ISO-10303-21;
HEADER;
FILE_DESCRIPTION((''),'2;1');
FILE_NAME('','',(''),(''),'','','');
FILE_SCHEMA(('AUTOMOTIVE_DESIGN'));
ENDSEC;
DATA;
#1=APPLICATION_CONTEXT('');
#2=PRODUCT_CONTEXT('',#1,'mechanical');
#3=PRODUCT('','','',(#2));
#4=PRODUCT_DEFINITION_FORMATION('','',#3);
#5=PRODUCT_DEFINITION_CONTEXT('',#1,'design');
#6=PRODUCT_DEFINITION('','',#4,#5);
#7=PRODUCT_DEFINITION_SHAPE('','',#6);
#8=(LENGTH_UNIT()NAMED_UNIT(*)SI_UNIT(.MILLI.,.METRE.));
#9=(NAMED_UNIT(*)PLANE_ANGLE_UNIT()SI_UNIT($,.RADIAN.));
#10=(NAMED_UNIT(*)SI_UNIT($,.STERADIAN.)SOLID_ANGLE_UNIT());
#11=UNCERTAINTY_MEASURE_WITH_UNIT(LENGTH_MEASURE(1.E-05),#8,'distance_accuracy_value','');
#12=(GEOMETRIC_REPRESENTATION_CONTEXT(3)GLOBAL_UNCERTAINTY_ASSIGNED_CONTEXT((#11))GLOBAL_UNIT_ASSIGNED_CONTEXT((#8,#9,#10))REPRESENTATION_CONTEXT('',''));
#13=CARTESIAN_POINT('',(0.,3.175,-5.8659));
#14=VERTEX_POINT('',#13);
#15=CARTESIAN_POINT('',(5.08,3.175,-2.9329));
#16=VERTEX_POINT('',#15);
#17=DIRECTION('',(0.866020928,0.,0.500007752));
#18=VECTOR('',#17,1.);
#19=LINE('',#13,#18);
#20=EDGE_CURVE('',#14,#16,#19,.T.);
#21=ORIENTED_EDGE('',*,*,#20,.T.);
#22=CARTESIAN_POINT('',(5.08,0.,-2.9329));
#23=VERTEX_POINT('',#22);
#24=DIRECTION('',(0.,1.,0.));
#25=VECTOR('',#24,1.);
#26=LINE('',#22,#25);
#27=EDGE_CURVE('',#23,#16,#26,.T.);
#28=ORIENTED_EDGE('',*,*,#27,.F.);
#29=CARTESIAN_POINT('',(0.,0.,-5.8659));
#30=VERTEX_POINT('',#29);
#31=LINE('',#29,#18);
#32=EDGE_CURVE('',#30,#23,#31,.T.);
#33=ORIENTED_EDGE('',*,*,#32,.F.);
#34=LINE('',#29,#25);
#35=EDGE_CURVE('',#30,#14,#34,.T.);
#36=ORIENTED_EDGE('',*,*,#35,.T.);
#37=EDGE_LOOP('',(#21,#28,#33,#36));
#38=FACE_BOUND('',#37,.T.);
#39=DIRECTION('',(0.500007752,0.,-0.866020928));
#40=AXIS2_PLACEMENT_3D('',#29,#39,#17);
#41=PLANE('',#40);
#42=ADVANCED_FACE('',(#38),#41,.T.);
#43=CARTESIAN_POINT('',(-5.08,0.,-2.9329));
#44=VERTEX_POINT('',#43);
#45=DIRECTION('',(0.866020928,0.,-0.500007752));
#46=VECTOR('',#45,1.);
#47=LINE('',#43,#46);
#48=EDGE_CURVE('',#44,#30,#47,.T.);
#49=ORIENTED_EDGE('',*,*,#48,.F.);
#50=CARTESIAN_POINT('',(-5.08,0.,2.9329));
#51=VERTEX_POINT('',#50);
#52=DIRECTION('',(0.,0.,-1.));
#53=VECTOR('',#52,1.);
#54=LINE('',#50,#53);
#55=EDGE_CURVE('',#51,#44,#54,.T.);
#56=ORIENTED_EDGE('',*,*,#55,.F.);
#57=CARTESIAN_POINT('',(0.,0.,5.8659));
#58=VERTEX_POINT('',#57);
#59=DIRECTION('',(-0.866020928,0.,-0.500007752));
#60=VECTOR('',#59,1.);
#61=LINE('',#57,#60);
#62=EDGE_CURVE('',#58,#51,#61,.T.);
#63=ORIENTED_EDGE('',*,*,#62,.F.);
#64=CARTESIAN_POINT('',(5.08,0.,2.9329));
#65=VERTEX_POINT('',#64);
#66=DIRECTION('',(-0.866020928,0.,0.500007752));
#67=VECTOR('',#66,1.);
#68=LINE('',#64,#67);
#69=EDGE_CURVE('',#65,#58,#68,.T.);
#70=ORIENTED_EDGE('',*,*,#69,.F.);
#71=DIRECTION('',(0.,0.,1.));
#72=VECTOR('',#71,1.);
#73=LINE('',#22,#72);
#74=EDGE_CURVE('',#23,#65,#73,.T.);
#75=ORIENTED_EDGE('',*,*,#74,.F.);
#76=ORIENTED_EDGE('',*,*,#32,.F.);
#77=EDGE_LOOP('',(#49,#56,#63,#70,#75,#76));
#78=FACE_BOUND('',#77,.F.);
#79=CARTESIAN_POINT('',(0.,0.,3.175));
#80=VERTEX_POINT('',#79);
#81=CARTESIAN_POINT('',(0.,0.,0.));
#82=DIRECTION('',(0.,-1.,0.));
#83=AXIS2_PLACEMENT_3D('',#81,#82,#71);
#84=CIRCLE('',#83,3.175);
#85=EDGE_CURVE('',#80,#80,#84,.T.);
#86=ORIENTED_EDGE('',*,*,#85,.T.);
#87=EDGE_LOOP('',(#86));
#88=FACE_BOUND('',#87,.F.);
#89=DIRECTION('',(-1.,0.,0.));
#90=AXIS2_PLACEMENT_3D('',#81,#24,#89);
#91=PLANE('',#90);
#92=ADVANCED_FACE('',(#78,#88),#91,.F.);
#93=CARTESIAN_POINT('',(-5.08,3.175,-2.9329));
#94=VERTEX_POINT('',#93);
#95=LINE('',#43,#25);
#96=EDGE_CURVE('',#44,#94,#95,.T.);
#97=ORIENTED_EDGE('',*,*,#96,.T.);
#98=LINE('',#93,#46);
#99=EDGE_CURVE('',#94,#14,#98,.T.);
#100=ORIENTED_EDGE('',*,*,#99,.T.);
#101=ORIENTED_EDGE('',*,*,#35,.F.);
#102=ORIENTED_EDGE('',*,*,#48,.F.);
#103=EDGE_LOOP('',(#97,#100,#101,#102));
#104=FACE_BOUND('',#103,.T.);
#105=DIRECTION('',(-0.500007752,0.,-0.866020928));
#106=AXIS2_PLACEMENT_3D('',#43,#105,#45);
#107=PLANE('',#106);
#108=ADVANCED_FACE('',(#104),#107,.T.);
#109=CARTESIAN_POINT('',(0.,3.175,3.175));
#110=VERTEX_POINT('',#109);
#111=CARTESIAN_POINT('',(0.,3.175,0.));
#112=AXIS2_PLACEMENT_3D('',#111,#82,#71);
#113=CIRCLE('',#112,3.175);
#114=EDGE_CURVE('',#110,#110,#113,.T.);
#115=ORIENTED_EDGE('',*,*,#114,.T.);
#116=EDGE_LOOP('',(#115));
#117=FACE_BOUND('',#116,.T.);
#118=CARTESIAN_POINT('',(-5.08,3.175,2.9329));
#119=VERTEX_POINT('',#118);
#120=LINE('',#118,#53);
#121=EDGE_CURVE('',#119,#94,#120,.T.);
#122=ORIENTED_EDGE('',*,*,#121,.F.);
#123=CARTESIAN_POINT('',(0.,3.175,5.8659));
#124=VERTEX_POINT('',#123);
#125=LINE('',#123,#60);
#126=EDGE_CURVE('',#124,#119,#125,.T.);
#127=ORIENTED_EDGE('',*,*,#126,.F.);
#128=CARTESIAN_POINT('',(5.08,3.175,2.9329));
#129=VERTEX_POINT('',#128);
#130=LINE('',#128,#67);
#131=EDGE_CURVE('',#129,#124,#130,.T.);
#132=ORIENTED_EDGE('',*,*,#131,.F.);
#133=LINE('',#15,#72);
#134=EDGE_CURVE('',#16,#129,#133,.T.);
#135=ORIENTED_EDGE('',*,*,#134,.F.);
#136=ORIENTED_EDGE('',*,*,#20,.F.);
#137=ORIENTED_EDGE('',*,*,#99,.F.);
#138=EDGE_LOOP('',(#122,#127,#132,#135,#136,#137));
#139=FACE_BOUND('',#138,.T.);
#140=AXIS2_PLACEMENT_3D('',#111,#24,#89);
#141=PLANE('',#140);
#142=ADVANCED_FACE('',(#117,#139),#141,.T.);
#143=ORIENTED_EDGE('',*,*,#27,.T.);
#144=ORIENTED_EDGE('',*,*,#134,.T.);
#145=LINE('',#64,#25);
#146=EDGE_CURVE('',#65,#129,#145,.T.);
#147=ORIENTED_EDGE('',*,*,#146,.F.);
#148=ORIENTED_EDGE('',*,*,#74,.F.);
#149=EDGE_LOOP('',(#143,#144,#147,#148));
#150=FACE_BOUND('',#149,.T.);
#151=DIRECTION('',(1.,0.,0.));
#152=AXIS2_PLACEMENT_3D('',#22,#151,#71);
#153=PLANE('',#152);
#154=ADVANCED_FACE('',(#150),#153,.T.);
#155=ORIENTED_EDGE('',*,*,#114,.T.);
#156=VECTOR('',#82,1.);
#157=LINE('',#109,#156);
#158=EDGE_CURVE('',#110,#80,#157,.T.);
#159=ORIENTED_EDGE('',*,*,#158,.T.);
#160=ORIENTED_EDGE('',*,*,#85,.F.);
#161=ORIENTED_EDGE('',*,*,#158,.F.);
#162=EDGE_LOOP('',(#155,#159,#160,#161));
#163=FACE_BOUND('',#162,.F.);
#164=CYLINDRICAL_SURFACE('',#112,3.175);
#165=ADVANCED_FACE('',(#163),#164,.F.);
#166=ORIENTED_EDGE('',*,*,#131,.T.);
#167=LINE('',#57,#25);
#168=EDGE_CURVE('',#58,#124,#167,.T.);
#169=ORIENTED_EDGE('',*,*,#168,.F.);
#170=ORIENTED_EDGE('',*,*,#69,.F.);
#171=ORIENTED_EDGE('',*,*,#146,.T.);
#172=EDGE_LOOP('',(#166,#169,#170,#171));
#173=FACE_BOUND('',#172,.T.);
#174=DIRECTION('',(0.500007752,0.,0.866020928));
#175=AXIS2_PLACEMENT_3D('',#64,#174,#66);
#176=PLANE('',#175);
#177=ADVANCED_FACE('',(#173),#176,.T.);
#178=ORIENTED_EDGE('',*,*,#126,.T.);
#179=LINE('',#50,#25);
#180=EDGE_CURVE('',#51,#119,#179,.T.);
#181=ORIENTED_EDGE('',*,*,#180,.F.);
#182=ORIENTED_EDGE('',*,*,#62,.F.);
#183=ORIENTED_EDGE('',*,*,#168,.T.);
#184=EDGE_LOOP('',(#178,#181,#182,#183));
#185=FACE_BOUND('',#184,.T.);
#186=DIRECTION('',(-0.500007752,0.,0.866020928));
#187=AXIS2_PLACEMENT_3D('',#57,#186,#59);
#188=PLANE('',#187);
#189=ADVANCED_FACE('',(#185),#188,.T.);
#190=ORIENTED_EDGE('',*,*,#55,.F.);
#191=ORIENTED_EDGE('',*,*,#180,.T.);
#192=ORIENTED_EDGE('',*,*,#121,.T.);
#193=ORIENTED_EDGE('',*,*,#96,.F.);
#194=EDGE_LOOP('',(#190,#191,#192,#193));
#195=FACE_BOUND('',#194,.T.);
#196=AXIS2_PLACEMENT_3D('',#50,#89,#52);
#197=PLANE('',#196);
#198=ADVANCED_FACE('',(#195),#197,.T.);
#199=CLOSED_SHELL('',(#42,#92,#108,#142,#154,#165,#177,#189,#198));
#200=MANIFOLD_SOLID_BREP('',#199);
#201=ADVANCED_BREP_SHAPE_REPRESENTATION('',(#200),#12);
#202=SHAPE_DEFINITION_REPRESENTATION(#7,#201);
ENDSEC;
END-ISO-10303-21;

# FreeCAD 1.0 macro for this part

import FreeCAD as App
import Part
import Sketcher
Q = App.Units.Quantity

doc = App.newDocument("Part")
body = doc.addObject("PartDesign::Body", "Body")

# Sketch on XZ plane
sketch1 = body.newObject("Sketcher::SketchObject", "Sketch")
sketch1.AttachmentSupport = (doc.getObject("XZ_Plane"), [""])
sketch1.MapMode = "FlatFace"
sketch1.addGeometry(Part.LineSegment(App.Vector(5.08, -2.9329, 0), App.Vector(0, -5.8659, 0)), False)
sketch1.addGeometry(Part.LineSegment(App.Vector(0, -5.8659, 0), App.Vector(-5.08, -2.9329, 0)), False)
sketch1.addGeometry(Part.LineSegment(App.Vector(-5.08, -2.9329, 0), App.Vector(-5.08, 2.9329, 0)), False)
sketch1.addGeometry(Part.LineSegment(App.Vector(-5.08, 2.9329, 0), App.Vector(0, 5.8659, 0)), False)
sketch1.addGeometry(Part.LineSegment(App.Vector(0, 5.8659, 0), App.Vector(5.08, 2.9329, 0)), False)
sketch1.addGeometry(Part.LineSegment(App.Vector(5.08, 2.9329, 0), App.Vector(5.08, -2.9329, 0)), False)
sketch1.addConstraint(Sketcher.Constraint("Coincident", 0, 2, 1, 1))
sketch1.addConstraint(Sketcher.Constraint("Coincident", 1, 2, 2, 1))
sketch1.addConstraint(Sketcher.Constraint("Coincident", 2, 2, 3, 1))
sketch1.addConstraint(Sketcher.Constraint("Coincident", 3, 2, 4, 1))
sketch1.addConstraint(Sketcher.Constraint("Coincident", 4, 2, 5, 1))
sketch1.addConstraint(Sketcher.Constraint("Coincident", 5, 2, 0, 1))
sketch1.addConstraint(Sketcher.Constraint("Vertical", 2))
sketch1.addConstraint(Sketcher.Constraint("Vertical", 5))
sketch1.addConstraint(Sketcher.Constraint("Symmetric", 0, 2, 3, 2, -1, 1))
sketch1.addConstraint(Sketcher.Constraint("Symmetric", 1, 2, 4, 2, -1, 1))
sketch1.addConstraint(Sketcher.Constraint("PointOnObject", 0, 2, -2))
sketch1.addConstraint(Sketcher.Constraint("Parallel", 0, 3))
sketch1.addConstraint(Sketcher.Constraint("Horizontal", 2, 2, 4, 2))
sketch1.addConstraint(Sketcher.Constraint("DistanceX", 1, 2, -1, 1, Q("0.2 in")))
sketch1.addConstraint(Sketcher.Constraint("Angle", 0, Q("-149.9995 deg")))
sketch1.addConstraint(Sketcher.Constraint("DistanceY", 2, 1, 2, 2, Q("5.8658 mm")))
pad1 = body.newObject("PartDesign::Pad", "Pad")
pad1.Profile = sketch1
pad1.Length = Q("0.125 in")
pad1.Reversed = True

# Sketch on XZ plane
sketch2 = body.newObject("Sketcher::SketchObject", "Sketch001")
sketch2.AttachmentSupport = (doc.getObject("XZ_Plane"), [""])
sketch2.MapMode = "FlatFace"
sketch2.AttachmentOffset = App.Placement(App.Vector(0, 0, -0.125 * 25.4), App.Rotation())
sketch2.addGeometry(Part.Circle(App.Vector(0, 0, 0), App.Vector(0, 0, 1), 3.175), False)
sketch2.addConstraint(Sketcher.Constraint("Coincident", 0, 3, -1, 1))
sketch2.addConstraint(Sketcher.Constraint("Diameter", 0, Q("0.25 in")))
doc.recompute()
hole = body.newObject("PartDesign::Hole", "Hole")
hole.Profile = sketch2
hole.ThreadType = "None"
hole.Diameter = Q("0.25 in")
hole.DepthType = "ThroughAll"
hole.Reversed = True

doc.recompute()
